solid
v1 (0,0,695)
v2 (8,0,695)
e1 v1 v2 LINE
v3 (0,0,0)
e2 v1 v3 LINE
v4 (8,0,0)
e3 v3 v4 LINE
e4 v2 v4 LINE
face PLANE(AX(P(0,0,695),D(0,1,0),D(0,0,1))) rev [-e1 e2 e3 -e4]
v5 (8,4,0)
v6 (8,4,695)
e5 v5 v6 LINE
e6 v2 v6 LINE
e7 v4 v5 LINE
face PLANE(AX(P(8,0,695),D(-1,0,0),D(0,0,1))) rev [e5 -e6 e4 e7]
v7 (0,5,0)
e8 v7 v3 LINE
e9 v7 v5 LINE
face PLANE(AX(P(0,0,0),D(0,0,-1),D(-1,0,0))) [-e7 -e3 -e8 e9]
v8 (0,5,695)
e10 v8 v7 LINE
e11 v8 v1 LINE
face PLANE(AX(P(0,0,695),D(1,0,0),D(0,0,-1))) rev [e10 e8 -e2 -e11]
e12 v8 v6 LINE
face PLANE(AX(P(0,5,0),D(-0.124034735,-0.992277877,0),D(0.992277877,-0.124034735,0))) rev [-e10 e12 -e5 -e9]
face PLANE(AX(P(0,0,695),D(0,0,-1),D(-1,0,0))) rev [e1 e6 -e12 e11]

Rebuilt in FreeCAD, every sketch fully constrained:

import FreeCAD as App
import Part
import Sketcher

V = App.Vector


def add_polygon(sketch, points):
    """Adds a closed chain of lines whose ends are joined by coincident constraints."""
    first, n = sketch.GeometryCount, len(points)
    for a, b in zip(points, points[1:] + points[:1]):
        sketch.addGeometry(Part.LineSegment(App.Vector(*a, 0), App.Vector(*b, 0)), False)
    for i in range(n):
        sketch.addConstraint(Sketcher.Constraint("Coincident", first + i, 2, first + (i + 1) % n, 1))

doc = App.newDocument("Part")
params = doc.addObject("Spreadsheet::Sheet", "Params")
for row, (alias, value) in enumerate([
    ("sketch1_width", "8 mm"),
    ("sketch1_height", "5 mm"),
    ("pad1_length", "695 mm"),
    ("sketch2_width", "8 mm"),
    ("sketch2_height", "1 mm"),
], start=1):
    params.set(f"A{row}", alias)
    params.set(f"B{row}", "=" + value)
    params.setAlias(f"B{row}", alias)

body = doc.addObject("PartDesign::Body", "Body")

# Sketch on XY plane
sketch1 = body.newObject("Sketcher::SketchObject", "Sketch")
sketch1.AttachmentSupport = (doc.getObject("XY_Plane"), [""])
sketch1.MapMode = "FlatFace"
add_polygon(sketch1, [(0, 5), (0, 0), (8, 0), (8, 5)])  # lines 0-3
sketch1.addConstraint(Sketcher.Constraint("Vertical", 0))
sketch1.addConstraint(Sketcher.Constraint("Horizontal", 1))
sketch1.addConstraint(Sketcher.Constraint("Vertical", 2))
sketch1.addConstraint(Sketcher.Constraint("Horizontal", 3))
sketch1.addConstraint(Sketcher.Constraint("Coincident", 0, 2, -1, 1))
sketch1.addConstraint(Sketcher.Constraint("DistanceX", 1, 1, 1, 2, 8.0))
sketch1.addConstraint(Sketcher.Constraint("DistanceY", 0, 2, 0, 1, 5.0))
sketch1.setExpression("Constraints[9]", "Params.sketch1_width")
sketch1.setExpression("Constraints[10]", "Params.sketch1_height")
pad1 = body.newObject("PartDesign::Pad", "Pad")
pad1.Profile = sketch1
pad1.setExpression("Length", "Params.pad1_length")

# Sketch on XY plane
sketch2 = body.newObject("Sketcher::SketchObject", "Sketch001")
sketch2.AttachmentSupport = (doc.getObject("XY_Plane"), [""])
sketch2.MapMode = "FlatFace"
sketch2.AttachmentOffset = App.Placement(V(0, 0, 695), App.Rotation())
add_polygon(sketch2, [(0, 5), (8, 4), (8, 5)])  # lines 0-2
sketch2.addConstraint(Sketcher.Constraint("Vertical", 1))
sketch2.addConstraint(Sketcher.Constraint("Horizontal", 2))
sketch2.addConstraint(Sketcher.Constraint("PointOnObject", 2, 2, -2))
sketch2.addConstraint(Sketcher.Constraint("DistanceX", 2, 2, 2, 1, 8.0))
sketch2.addConstraint(Sketcher.Constraint("DistanceY", 1, 1, 1, 2, 1.0))
sketch2.addConstraint(Sketcher.Constraint("DistanceY", -1, 1, 0, 2, 4.0))
sketch2.setExpression("Constraints[6]", "Params.sketch2_width")
sketch2.setExpression("Constraints[7]", "Params.sketch2_height")
pocket1 = body.newObject("PartDesign::Pocket", "Pocket")
pocket1.Profile = sketch2
pocket1.Type = "ThroughAll"

doc.recompute()
